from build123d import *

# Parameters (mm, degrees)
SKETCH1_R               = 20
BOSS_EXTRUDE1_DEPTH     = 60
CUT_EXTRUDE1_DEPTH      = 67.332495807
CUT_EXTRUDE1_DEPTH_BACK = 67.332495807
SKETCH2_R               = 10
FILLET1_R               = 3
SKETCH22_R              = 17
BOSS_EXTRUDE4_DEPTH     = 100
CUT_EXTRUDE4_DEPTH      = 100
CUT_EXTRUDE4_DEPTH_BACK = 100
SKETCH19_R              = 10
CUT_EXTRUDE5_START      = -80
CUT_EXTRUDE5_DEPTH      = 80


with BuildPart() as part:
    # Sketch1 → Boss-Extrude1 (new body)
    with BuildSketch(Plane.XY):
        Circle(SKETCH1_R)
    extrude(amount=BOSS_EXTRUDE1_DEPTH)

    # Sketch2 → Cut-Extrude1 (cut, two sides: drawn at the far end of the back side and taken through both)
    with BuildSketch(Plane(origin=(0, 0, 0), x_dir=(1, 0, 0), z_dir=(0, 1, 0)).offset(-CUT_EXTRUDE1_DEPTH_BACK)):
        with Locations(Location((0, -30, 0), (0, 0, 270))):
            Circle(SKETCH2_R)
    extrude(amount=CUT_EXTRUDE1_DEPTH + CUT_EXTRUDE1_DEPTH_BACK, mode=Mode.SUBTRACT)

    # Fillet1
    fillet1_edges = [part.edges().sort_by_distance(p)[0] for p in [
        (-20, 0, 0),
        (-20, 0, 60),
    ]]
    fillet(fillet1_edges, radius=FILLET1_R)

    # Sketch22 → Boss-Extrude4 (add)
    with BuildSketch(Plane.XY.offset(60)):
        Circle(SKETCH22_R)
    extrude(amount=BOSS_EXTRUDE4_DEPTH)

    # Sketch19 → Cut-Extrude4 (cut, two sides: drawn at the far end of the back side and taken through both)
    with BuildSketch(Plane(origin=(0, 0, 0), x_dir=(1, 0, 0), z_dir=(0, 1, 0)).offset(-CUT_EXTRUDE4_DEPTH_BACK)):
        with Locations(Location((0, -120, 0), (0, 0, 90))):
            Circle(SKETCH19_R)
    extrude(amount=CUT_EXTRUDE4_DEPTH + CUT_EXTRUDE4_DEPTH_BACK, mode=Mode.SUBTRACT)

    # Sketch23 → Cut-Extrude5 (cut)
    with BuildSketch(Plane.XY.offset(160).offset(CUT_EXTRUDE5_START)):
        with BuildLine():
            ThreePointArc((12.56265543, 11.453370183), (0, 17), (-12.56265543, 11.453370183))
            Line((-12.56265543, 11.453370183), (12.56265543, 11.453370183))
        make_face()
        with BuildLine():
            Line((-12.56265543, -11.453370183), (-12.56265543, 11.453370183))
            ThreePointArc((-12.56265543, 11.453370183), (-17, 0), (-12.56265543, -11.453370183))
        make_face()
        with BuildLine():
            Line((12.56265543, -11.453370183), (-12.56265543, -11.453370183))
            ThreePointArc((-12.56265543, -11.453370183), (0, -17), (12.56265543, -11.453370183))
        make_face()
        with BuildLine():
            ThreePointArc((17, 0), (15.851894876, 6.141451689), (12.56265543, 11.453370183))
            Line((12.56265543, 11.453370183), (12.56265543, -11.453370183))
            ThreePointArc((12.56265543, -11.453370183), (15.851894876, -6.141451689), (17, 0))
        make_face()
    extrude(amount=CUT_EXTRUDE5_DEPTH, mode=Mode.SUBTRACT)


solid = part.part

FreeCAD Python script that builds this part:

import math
import FreeCAD as App
import Part
import Sketcher

V = App.Vector
Q = App.Units.Quantity


def edges_at(feature, points):
    """Names of the edges that pass closest to the given points."""
    edges = feature.Shape.Edges
    near = lambda p: min(range(len(edges)), key=lambda i: edges[i].distToShape(Part.Vertex(*p))[0])
    return sorted({f"Edge{near(p) + 1}" for p in points})

doc = App.newDocument("Part")
params = doc.addObject("Spreadsheet::Sheet", "Params")
for row, (alias, value) in enumerate([
    ("sketch1_diameter", "40 mm"),
    ("pad1_length", "60 mm"),
    ("sketch2_diameter", "20 mm"),
    ("fillet_radius", "3 mm"),
    ("sketch3_diameter", "34 mm"),
    ("pad2_length", "100 mm"),
    ("sketch4_diameter", "20 mm"),
    ("sketch5_radius", "17 mm"),
    ("pocket3_length", "80 mm"),
], start=1):
    params.set(f"A{row}", alias)
    params.set(f"B{row}", "=" + value)
    params.setAlias(f"B{row}", alias)

body = doc.addObject("PartDesign::Body", "Body")

sketch1 = body.newObject("Sketcher::SketchObject", "Sketch")
sketch1.AttachmentSupport = (doc.getObject("XY_Plane"), [""])
sketch1.MapMode = "FlatFace"
sketch1.addGeometry(Part.Circle(V(0, 0, 0), V(0, 0, 1), 20), False)
sketch1.addConstraint(Sketcher.Constraint("Coincident", 0, 3, -1, 1))
sketch1.addConstraint(Sketcher.Constraint("Diameter", 0, Q("40 mm")))
sketch1.setExpression("Constraints[1]", "Params.sketch1_diameter")
pad1 = body.newObject("PartDesign::Pad", "Pad")
pad1.Profile = sketch1
pad1.setExpression("Length", "Params.pad1_length")

sketch2 = body.newObject("Sketcher::SketchObject", "Sketch001")
sketch2.AttachmentSupport = (doc.getObject("XZ_Plane"), [""])
sketch2.MapMode = "FlatFace"
sketch2.addGeometry(Part.Circle(V(0, 30, 0), V(0, 0, 1), 10), False)
sketch2.addConstraint(Sketcher.Constraint("PointOnObject", 0, 3, -2))
sketch2.addConstraint(Sketcher.Constraint("Diameter", 0, Q("20 mm")))
sketch2.addConstraint(Sketcher.Constraint("DistanceY", -1, 1, 0, 3, Q("30 mm")))
sketch2.setExpression("Constraints[1]", "Params.sketch2_diameter")
pocket1 = body.newObject("PartDesign::Pocket", "Pocket")
pocket1.Profile = sketch2
pocket1.Type = "ThroughAll"
pocket1.Midplane = True
doc.recompute()

fillet = body.newObject("PartDesign::Fillet", "Fillet")
fillet.Base = (pocket1, edges_at(pocket1, [(-20, 0, 0), (-20, 0, 60)]))
fillet.setExpression("Radius", "Params.fillet_radius")

sketch3 = body.newObject("Sketcher::SketchObject", "Sketch002")
sketch3.AttachmentSupport = (doc.getObject("XY_Plane"), [""])
sketch3.MapMode = "FlatFace"
sketch3.AttachmentOffset = App.Placement(V(0, 0, 60), App.Rotation())
sketch3.addGeometry(Part.Circle(V(0, 0, 0), V(0, 0, 1), 17), False)
sketch3.addConstraint(Sketcher.Constraint("Coincident", 0, 3, -1, 1))
sketch3.addConstraint(Sketcher.Constraint("Diameter", 0, Q("34 mm")))
sketch3.setExpression("Constraints[1]", "Params.sketch3_diameter")
pad2 = body.newObject("PartDesign::Pad", "Pad001")
pad2.Profile = sketch3
pad2.setExpression("Length", "Params.pad2_length")

sketch4 = body.newObject("Sketcher::SketchObject", "Sketch003")
sketch4.AttachmentSupport = (doc.getObject("XZ_Plane"), [""])
sketch4.MapMode = "FlatFace"
sketch4.addGeometry(Part.Circle(V(0, 120, 0), V(0, 0, 1), 10), False)
sketch4.addConstraint(Sketcher.Constraint("PointOnObject", 0, 3, -2))
sketch4.addConstraint(Sketcher.Constraint("Diameter", 0, Q("20 mm")))
sketch4.addConstraint(Sketcher.Constraint("DistanceY", -1, 1, 0, 3, Q("120 mm")))
sketch4.setExpression("Constraints[1]", "Params.sketch4_diameter")
pocket2 = body.newObject("PartDesign::Pocket", "Pocket001")
pocket2.Profile = sketch4
pocket2.Type = "ThroughAll"
pocket2.Midplane = True

sketch5 = body.newObject("Sketcher::SketchObject", "Sketch004")
sketch5.AttachmentSupport = (doc.getObject("XY_Plane"), [""])
sketch5.MapMode = "FlatFace"
sketch5.AttachmentOffset = App.Placement(V(0, 0, 80), App.Rotation())
sketch5.addGeometry(Part.ArcOfCircle(Part.Circle(V(0, 0, 0), V(0, 0, 1), 17), math.radians(42), math.radians(138)), False)
sketch5.addGeometry(Part.LineSegment(V(-13, 11, 0), V(13, 11, 0)), False)
sketch5.addGeometry(Part.LineSegment(V(-13, -11, 0), V(-13, 11, 0)), False)
sketch5.addGeometry(Part.ArcOfCircle(Part.Circle(V(0, 0, 0), V(0, 0, 1), 17), math.radians(138), math.radians(222)), False)
sketch5.addGeometry(Part.LineSegment(V(13, -11, 0), V(-13, -11, 0)), False)
sketch5.addGeometry(Part.ArcOfCircle(Part.Circle(V(0, 0, 0), V(0, 0, 1), 17), math.radians(-138), math.radians(-42)), False)
sketch5.addGeometry(Part.ArcOfCircle(Part.Circle(V(0, 0, 0), V(0, 0, 1), 17), math.radians(0), math.radians(42)), False)
sketch5.addGeometry(Part.LineSegment(V(13, 11, 0), V(13, -11, 0)), False)
sketch5.addGeometry(Part.ArcOfCircle(Part.Circle(V(0, 0, 0), V(0, 0, 1), 17), math.radians(-42), math.radians(0)), False)
sketch5.addConstraint(Sketcher.Constraint("Coincident", 0, 1, 1, 2))
sketch5.addConstraint(Sketcher.Constraint("Coincident", 1, 1, 0, 2))
sketch5.addConstraint(Sketcher.Constraint("Coincident", 2, 1, 3, 2))
sketch5.addConstraint(Sketcher.Constraint("Coincident", 3, 1, 2, 2))
sketch5.addConstraint(Sketcher.Constraint("Coincident", 4, 1, 5, 2))
sketch5.addConstraint(Sketcher.Constraint("Coincident", 5, 1, 4, 2))
sketch5.addConstraint(Sketcher.Constraint("Coincident", 6, 2, 7, 1))
sketch5.addConstraint(Sketcher.Constraint("Coincident", 7, 2, 8, 1))
sketch5.addConstraint(Sketcher.Constraint("Tangent", 8, 2, 6, 1))
sketch5.addConstraint(Sketcher.Constraint("Horizontal", 1))
sketch5.addConstraint(Sketcher.Constraint("Vertical", 2))
sketch5.addConstraint(Sketcher.Constraint("Horizontal", 4))
sketch5.addConstraint(Sketcher.Constraint("Vertical", 7))
sketch5.addConstraint(Sketcher.Constraint("Coincident", 0, 3, -1, 1))
sketch5.addConstraint(Sketcher.Constraint("Coincident", 3, 3, -1, 1))
sketch5.addConstraint(Sketcher.Constraint("Coincident", 5, 3, -1, 1))
sketch5.addConstraint(Sketcher.Constraint("Coincident", 6, 3, -1, 1))
sketch5.addConstraint(Sketcher.Constraint("Coincident", 3, 1, 1, 1))
sketch5.addConstraint(Sketcher.Constraint("Coincident", 5, 1, 2, 1))
sketch5.addConstraint(Sketcher.Constraint("Coincident", 6, 2, 0, 1))
sketch5.addConstraint(Sketcher.Constraint("Equal", 6, 8))
sketch5.addConstraint(Sketcher.Constraint("PointOnObject", 8, 2, -1))
sketch5.addConstraint(Sketcher.Constraint("Radius", 0, Q("17 mm")))
sketch5.addConstraint(Sketcher.Constraint("DistanceX", 1, 1, 1, 2, Q("25.125311 mm")))
sketch5.setExpression("Constraints[22]", "Params.sketch5_radius")
pocket3 = body.newObject("PartDesign::Pocket", "Pocket002")
pocket3.Profile = sketch5
pocket3.setExpression("Length", "Params.pocket3_length")
pocket3.Reversed = True

doc.recompute()
